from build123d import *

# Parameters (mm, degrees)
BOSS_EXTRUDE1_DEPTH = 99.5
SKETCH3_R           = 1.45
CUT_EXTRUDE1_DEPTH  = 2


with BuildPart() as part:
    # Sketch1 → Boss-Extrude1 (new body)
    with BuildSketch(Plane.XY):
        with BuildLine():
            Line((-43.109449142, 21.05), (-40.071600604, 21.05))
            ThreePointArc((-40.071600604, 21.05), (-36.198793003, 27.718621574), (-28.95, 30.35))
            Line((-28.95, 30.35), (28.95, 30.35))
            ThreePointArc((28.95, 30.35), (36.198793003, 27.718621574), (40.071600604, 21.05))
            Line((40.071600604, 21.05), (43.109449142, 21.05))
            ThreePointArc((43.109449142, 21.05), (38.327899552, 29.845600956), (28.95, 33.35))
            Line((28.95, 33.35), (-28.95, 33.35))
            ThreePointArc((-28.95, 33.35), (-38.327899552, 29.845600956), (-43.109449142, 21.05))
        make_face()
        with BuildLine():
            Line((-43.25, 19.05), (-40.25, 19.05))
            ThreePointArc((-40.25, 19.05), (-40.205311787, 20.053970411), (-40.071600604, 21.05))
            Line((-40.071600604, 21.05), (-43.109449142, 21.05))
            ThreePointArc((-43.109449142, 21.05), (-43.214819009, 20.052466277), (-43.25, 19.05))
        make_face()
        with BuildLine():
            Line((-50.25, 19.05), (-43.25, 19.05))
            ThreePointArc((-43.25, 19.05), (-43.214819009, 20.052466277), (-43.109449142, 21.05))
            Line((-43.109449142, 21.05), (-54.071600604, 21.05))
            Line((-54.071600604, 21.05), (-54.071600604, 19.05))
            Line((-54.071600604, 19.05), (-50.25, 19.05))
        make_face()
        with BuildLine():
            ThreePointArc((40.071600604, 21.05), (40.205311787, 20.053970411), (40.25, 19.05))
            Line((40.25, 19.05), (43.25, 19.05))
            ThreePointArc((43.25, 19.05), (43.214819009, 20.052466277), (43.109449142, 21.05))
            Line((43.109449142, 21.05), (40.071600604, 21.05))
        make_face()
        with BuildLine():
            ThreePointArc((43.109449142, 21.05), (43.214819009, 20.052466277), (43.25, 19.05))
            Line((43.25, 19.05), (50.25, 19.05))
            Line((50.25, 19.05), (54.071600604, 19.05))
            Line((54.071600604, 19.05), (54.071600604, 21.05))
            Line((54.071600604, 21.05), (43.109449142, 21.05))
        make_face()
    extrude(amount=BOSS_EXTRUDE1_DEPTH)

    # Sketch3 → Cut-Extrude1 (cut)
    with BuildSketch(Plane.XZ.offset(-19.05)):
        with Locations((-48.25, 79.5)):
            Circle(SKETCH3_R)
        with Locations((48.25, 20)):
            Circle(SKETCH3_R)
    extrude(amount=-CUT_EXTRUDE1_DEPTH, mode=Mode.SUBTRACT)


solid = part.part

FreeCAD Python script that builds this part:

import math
import FreeCAD as App
import Part
import Sketcher
from FreeCAD import Vector
Q = App.Units.Quantity

doc = App.newDocument("Part")
body = doc.addObject("PartDesign::Body", "Body")

# Sketch on XY plane
sketch1 = doc.addObject("Sketcher::SketchObject", "Sketch")
body.addObject(sketch1)
sketch1.AttachmentSupport = (doc.XY_Plane, [""])
sketch1.MapMode = "FlatFace"
sketch1.addGeometry(Part.ArcOfCircle(Part.Circle(Vector(-28.9, 19.1, 0), Vector(0, 0, 1), 11.3), math.radians(90), math.radians(170)), False)
sketch1.addGeometry(Part.LineSegment(Vector(-28.9, 30.4, 0), Vector(28.9, 30.4, 0)), False)
sketch1.addGeometry(Part.ArcOfCircle(Part.Circle(Vector(28.9, 19.1, 0), Vector(0, 0, 1), 11.3), math.radians(10), math.radians(90)), False)
sketch1.addGeometry(Part.ArcOfCircle(Part.Circle(Vector(29, 19.1, 0), Vector(0, 0, 1), 11.3), math.radians(0), math.radians(10.19)), False)
sketch1.addGeometry(Part.LineSegment(Vector(40.2, 19.1, 0), Vector(54.1, 19.1, 0)), False)
sketch1.addGeometry(Part.LineSegment(Vector(54.1, 19.1, 0), Vector(54.1, 21.1, 0)), False)
sketch1.addGeometry(Part.LineSegment(Vector(54.1, 21.1, 0), Vector(43.1, 21.1, 0)), False)
sketch1.addGeometry(Part.ArcOfCircle(Part.Circle(Vector(29, 19.1, 0), Vector(0, 0, 1), 14.3), math.radians(8), math.radians(90)), False)
sketch1.addGeometry(Part.LineSegment(Vector(28.9, 33.4, 0), Vector(-28.9, 33.4, 0)), False)
sketch1.addGeometry(Part.ArcOfCircle(Part.Circle(Vector(-29, 19.1, 0), Vector(0, 0, 1), 14.3), math.radians(90), math.radians(172)), False)
sketch1.addGeometry(Part.LineSegment(Vector(-43.1, 21.1, 0), Vector(-54.1, 21.1, 0)), False)
sketch1.addGeometry(Part.LineSegment(Vector(-54.1, 21.1, 0), Vector(-54.1, 19.1, 0)), False)
sketch1.addGeometry(Part.LineSegment(Vector(-54.1, 19.1, 0), Vector(-40.2, 19.1, 0)), False)
sketch1.addGeometry(Part.ArcOfCircle(Part.Circle(Vector(-29, 19.1, 0), Vector(0, 0, 1), 11.3), math.radians(169.81), math.radians(180)), False)
sketch1.addConstraint(Sketcher.Constraint("Tangent", 0, 1, 1, 1))
sketch1.addConstraint(Sketcher.Constraint("Tangent", 1, 2, 2, 2))
sketch1.addConstraint(Sketcher.Constraint("Tangent", 2, 1, 3, 2))
sketch1.addConstraint(Sketcher.Constraint("Coincident", 3, 1, 4, 1))
sketch1.addConstraint(Sketcher.Constraint("Coincident", 4, 2, 5, 1))
sketch1.addConstraint(Sketcher.Constraint("Coincident", 5, 2, 6, 1))
sketch1.addConstraint(Sketcher.Constraint("Coincident", 6, 2, 7, 1))
sketch1.addConstraint(Sketcher.Constraint("Tangent", 7, 2, 8, 1))
sketch1.addConstraint(Sketcher.Constraint("Tangent", 8, 2, 9, 1))
sketch1.addConstraint(Sketcher.Constraint("Coincident", 9, 2, 10, 1))
sketch1.addConstraint(Sketcher.Constraint("Coincident", 10, 2, 11, 1))
sketch1.addConstraint(Sketcher.Constraint("Coincident", 11, 2, 12, 1))
sketch1.addConstraint(Sketcher.Constraint("Coincident", 12, 2, 13, 2))
sketch1.addConstraint(Sketcher.Constraint("Tangent", 13, 1, 0, 2))
sketch1.addConstraint(Sketcher.Constraint("Horizontal", 1))
sketch1.addConstraint(Sketcher.Constraint("Horizontal", 4))
sketch1.addConstraint(Sketcher.Constraint("Vertical", 5))
sketch1.addConstraint(Sketcher.Constraint("Horizontal", 6))
sketch1.addConstraint(Sketcher.Constraint("Horizontal", 8))
sketch1.addConstraint(Sketcher.Constraint("Horizontal", 10))
sketch1.addConstraint(Sketcher.Constraint("Vertical", 11))
sketch1.addConstraint(Sketcher.Constraint("Horizontal", 12))
sketch1.addConstraint(Sketcher.Constraint("Coincident", 7, 3, 2, 3))
sketch1.addConstraint(Sketcher.Constraint("Coincident", 9, 3, 0, 3))
sketch1.addConstraint(Sketcher.Constraint("Equal", 0, 2))
sketch1.addConstraint(Sketcher.Constraint("Equal", 2, 3))
sketch1.addConstraint(Sketcher.Constraint("Equal", 3, 13))
sketch1.addConstraint(Sketcher.Constraint("Symmetric", 6, 2, 9, 2, -2))
sketch1.addConstraint(Sketcher.Constraint("Symmetric", 4, 2, 11, 2, -2))
sketch1.addConstraint(Sketcher.Constraint("Horizontal", 13, 3, 3, 1))
sketch1.addConstraint(Sketcher.Constraint("Horizontal", 2, 1, 5, 2))
sketch1.addConstraint(Sketcher.Constraint("Horizontal", 10, 2, 13, 1))
sketch1.addConstraint(Sketcher.Constraint("Radius", 0, Q("11.3 mm")))
sketch1.addConstraint(Sketcher.Constraint("Radius", 7, Q("14.3 mm")))
sketch1.addConstraint(Sketcher.Constraint("DistanceY", 5, 1, 5, 2, Q("2 mm")))
sketch1.addConstraint(Sketcher.Constraint("DistanceX", 1, 1, 1, 2, Q("57.9 mm")))
sketch1.addConstraint(Sketcher.Constraint("DistanceX", 2, 1, 4, 2, Q("14 mm")))
sketch1.addConstraint(Sketcher.Constraint("DistanceY", -1, 1, 0, 3, Q("19.05 mm")))
pad1 = doc.addObject("PartDesign::Pad", "Pad")
body.addObject(pad1)
pad1.Profile = sketch1
pad1.Length = 99.5

# Sketch on XZ plane
sketch2 = doc.addObject("Sketcher::SketchObject", "Sketch001")
body.addObject(sketch2)
sketch2.AttachmentSupport = (doc.XZ_Plane, [""])
sketch2.MapMode = "FlatFace"
sketch2.AttachmentOffset = App.Placement(Vector(0, 0, -19.05), App.Rotation())
sketch2.addGeometry(Part.Circle(Vector(-48.2, 79.5, 0), Vector(0, 0, 1), 1.4), False)
sketch2.addGeometry(Part.Circle(Vector(48.2, 20, 0), Vector(0, 0, 1), 1.4), False)
sketch2.addConstraint(Sketcher.Constraint("Equal", 0, 1))
sketch2.addConstraint(Sketcher.Constraint("Diameter", 0, Q("2.9 mm")))
sketch2.addConstraint(Sketcher.Constraint("DistanceY", -1, 1, 1, 3, Q("20 mm")))
sketch2.addConstraint(Sketcher.Constraint("DistanceY", -1, 1, 0, 3, Q("79.5 mm")))
sketch2.addConstraint(Sketcher.Constraint("DistanceX", 0, 3, 1, 3, Q("96.5 mm")))
sketch2.addConstraint(Sketcher.Constraint("DistanceX", 0, 3, -1, 1, Q("48.25 mm")))
pocket1 = doc.addObject("PartDesign::Pocket", "Pocket")
body.addObject(pocket1)
pocket1.Profile = sketch2
pocket1.Length = 2

doc.recompute()
